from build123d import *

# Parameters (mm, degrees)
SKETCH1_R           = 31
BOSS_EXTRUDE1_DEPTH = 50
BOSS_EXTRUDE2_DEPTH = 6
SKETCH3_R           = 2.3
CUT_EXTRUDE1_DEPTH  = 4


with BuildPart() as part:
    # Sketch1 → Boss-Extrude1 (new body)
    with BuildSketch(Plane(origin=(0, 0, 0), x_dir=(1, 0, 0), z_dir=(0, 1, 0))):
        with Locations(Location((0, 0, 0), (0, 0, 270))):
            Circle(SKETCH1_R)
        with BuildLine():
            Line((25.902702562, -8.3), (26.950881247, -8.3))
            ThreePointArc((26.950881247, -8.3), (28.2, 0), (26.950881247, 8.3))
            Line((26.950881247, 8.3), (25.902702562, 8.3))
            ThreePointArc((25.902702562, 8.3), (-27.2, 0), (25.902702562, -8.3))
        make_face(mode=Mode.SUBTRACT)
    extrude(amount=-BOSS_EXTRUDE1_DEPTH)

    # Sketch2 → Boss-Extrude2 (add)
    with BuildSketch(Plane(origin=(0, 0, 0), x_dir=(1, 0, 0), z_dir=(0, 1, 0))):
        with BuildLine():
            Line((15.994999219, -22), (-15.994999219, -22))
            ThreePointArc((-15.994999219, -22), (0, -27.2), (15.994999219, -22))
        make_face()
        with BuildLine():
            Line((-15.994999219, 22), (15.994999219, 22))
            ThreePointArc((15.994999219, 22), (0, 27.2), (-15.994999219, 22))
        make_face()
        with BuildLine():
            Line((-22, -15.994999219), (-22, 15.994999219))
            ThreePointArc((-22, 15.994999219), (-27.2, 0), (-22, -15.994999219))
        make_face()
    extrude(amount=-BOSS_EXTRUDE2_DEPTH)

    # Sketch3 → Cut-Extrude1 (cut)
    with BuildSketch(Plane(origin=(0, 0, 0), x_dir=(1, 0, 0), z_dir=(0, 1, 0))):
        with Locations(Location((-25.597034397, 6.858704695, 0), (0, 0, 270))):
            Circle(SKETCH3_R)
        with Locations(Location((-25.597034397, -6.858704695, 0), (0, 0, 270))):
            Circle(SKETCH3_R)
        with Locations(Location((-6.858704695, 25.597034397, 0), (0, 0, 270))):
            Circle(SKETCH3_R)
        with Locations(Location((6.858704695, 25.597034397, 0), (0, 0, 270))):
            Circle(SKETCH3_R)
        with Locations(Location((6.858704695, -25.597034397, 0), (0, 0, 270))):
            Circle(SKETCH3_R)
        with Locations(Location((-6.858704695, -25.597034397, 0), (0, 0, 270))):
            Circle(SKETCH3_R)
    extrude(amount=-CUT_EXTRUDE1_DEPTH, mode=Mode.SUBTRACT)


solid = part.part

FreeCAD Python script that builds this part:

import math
import FreeCAD as App
import Part
import Sketcher
from FreeCAD import Vector
Q = App.Units.Quantity

doc = App.newDocument("Part")
body = doc.addObject("PartDesign::Body", "Body")

sketch1 = body.newObject("Sketcher::SketchObject", "Sketch")
sketch1.AttachmentSupport = (doc.getObject("XZ_Plane"), [""])
sketch1.MapMode = "FlatFace"
sketch1.addGeometry([
    Part.Circle(Vector(0, 0, 0), Vector(0, 0, 1), 31),
    Part.LineSegment(Vector(27, 8.3, 0), Vector(25.9, 8.3, 0)),
    Part.ArcOfCircle(Part.Circle(Vector(0, 0, 0), Vector(0, 0, 1), 27.2), math.radians(18), math.radians(342)),
    Part.LineSegment(Vector(25.9, -8.3, 0), Vector(27, -8.3, 0)),
    Part.ArcOfCircle(Part.Circle(Vector(0, 0, 0), Vector(0, 0, 1), 28.2), math.radians(-17), math.radians(17)),
], False)
sketch1.addConstraint([
    Sketcher.Constraint("Coincident", 1, 2, 2, 1),
    Sketcher.Constraint("Coincident", 2, 2, 3, 1),
    Sketcher.Constraint("Coincident", 3, 2, 4, 1),
    Sketcher.Constraint("Coincident", 4, 2, 1, 1),
    Sketcher.Constraint("Horizontal", 1),
    Sketcher.Constraint("Horizontal", 3),
    Sketcher.Constraint("Coincident", 0, 3, -1, 1),
    Sketcher.Constraint("Coincident", 2, 3, -1, 1),
    Sketcher.Constraint("Coincident", 4, 3, -1, 1),
    Sketcher.Constraint("Vertical", 1, 2, 2, 2),
    Sketcher.Constraint("Diameter", 0, Q("62 mm")),
    Sketcher.Constraint("Radius", 2, Q("27.2 mm")),
    Sketcher.Constraint("Radius", 4, Q("28.2 mm")),
    Sketcher.Constraint("DistanceY", -1, 1, 1, 2, Q("8.3 mm")),
])
pad1 = body.newObject("PartDesign::Pad", "Pad")
pad1.Profile = sketch1
pad1.Length = 50

sketch2 = body.newObject("Sketcher::SketchObject", "Sketch001")
sketch2.AttachmentSupport = (doc.getObject("XZ_Plane"), [""])
sketch2.MapMode = "FlatFace"
sketch2.addGeometry([
    Part.LineSegment(Vector(16, 22, 0), Vector(-16, 22, 0)),
    Part.ArcOfCircle(Part.Circle(Vector(0, 0, 0), Vector(0, 0, 1), 27), math.radians(54), math.radians(126)),
    Part.LineSegment(Vector(-16, -22, 0), Vector(16, -22, 0)),
    Part.ArcOfCircle(Part.Circle(Vector(0, 0, 0), Vector(0, 0, 1), 27), math.radians(-126), math.radians(-54)),
    Part.LineSegment(Vector(-22, 16, 0), Vector(-22, -16, 0)),
    Part.ArcOfCircle(Part.Circle(Vector(0, 0, 0), Vector(0, 0, 1), 27), math.radians(144), math.radians(216)),
], False)
sketch2.addConstraint([
    Sketcher.Constraint("Coincident", 0, 1, 1, 1),
    Sketcher.Constraint("Coincident", 1, 2, 0, 2),
    Sketcher.Constraint("Coincident", 2, 1, 3, 1),
    Sketcher.Constraint("Coincident", 3, 2, 2, 2),
    Sketcher.Constraint("Coincident", 4, 1, 5, 1),
    Sketcher.Constraint("Coincident", 5, 2, 4, 2),
    Sketcher.Constraint("Horizontal", 0),
    Sketcher.Constraint("Horizontal", 2),
    Sketcher.Constraint("Vertical", 4),
    Sketcher.Constraint("Coincident", 1, 3, -1, 1),
    Sketcher.Constraint("Coincident", 3, 3, -1, 1),
    Sketcher.Constraint("Coincident", 5, 3, -1, 1),
    Sketcher.Constraint("Equal", 1, 3),
    Sketcher.Constraint("Equal", 3, 5),
    Sketcher.Constraint("Vertical", 1, 2, 2, 1),
    Sketcher.Constraint("Equal", 2, 4),
    Sketcher.Constraint("Radius", 1, Q("27.2 mm")),
    Sketcher.Constraint("DistanceY", -1, 1, 0, 1, Q("22 mm")),
])
pad2 = body.newObject("PartDesign::Pad", "Pad001")
pad2.Profile = sketch2
pad2.Length = 6

sketch3 = body.newObject("Sketcher::SketchObject", "Sketch002")
sketch3.AttachmentSupport = (doc.getObject("XZ_Plane"), [""])
sketch3.MapMode = "FlatFace"
sketch3.addGeometry([
    Part.Circle(Vector(-25.6, -6.9, 0), Vector(0, 0, 1), 2.3),
    Part.Circle(Vector(-25.6, 6.9, 0), Vector(0, 0, 1), 2.3),
    Part.Circle(Vector(-6.9, -25.6, 0), Vector(0, 0, 1), 2.3),
    Part.Circle(Vector(6.9, -25.6, 0), Vector(0, 0, 1), 2.3),
    Part.Circle(Vector(6.9, 25.6, 0), Vector(0, 0, 1), 2.3),
    Part.Circle(Vector(-6.9, 25.6, 0), Vector(0, 0, 1), 2.3),
], False)
sketch3.addConstraint([
    Sketcher.Constraint("Equal", 0, 1),
    Sketcher.Constraint("Equal", 1, 2),
    Sketcher.Constraint("Equal", 2, 3),
    Sketcher.Constraint("Equal", 3, 4),
    Sketcher.Constraint("Equal", 4, 5),
    Sketcher.Constraint("Symmetric", 2, 3, 4, 3, -1, 1),
    Sketcher.Constraint("Symmetric", 3, 3, 5, 3, -1, 1),
    Sketcher.Constraint("Symmetric", 2, 3, 3, 3, -2),
    Sketcher.Constraint("Symmetric", 0, 3, 1, 3, -1),
    Sketcher.Constraint("Diameter", 0, Q("4.6 mm")),
    Sketcher.Constraint("DistanceY", 0, 3, 1, 3, Q("13.717409 mm")),
    Sketcher.Constraint("DistanceX", 0, 3, 2, 3, Q("18.73833 mm")),
    Sketcher.Constraint("DistanceY", 2, 3, 0, 3, Q("18.73833 mm")),
    Sketcher.Constraint("DistanceX", 2, 3, 3, 3, Q("13.717409 mm")),
])
pocket1 = body.newObject("PartDesign::Pocket", "Pocket")
pocket1.Profile = sketch3
pocket1.Length = 4
pocket1.Reversed = True

doc.recompute()
